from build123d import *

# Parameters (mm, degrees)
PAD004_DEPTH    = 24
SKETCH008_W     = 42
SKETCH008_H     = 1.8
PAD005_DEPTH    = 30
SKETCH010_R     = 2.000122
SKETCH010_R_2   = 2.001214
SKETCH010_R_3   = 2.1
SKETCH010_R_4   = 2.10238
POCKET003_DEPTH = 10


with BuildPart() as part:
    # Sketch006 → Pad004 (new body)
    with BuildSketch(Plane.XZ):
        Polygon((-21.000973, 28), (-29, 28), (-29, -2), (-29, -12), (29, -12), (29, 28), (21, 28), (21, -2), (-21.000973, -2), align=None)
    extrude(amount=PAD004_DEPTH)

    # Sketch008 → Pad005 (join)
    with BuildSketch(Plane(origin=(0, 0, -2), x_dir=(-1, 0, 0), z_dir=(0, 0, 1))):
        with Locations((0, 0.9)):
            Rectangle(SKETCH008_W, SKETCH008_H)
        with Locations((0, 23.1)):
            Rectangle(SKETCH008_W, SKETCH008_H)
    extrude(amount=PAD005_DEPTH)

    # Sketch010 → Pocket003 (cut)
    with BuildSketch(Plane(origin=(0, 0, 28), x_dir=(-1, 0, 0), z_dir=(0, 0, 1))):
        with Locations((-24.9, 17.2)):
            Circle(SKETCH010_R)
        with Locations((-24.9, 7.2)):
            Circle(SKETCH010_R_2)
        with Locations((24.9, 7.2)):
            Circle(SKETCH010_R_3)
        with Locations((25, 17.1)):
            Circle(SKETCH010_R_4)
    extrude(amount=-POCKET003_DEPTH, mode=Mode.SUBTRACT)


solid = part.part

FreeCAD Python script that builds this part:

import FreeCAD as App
import Part
import Sketcher
from FreeCAD import Vector
Q = App.Units.Quantity


def add_polygon(sketch, points):
    """Adds a closed chain of lines whose ends are joined by coincident constraints."""
    first, n = sketch.GeometryCount, len(points)
    for a, b in zip(points, points[1:] + points[:1]):
        sketch.addGeometry(Part.LineSegment(App.Vector(*a, 0), App.Vector(*b, 0)), False)
    for i in range(n):
        sketch.addConstraint(Sketcher.Constraint("Coincident", first + i, 2, first + (i + 1) % n, 1))

doc = App.newDocument("Part")
body = doc.addObject("PartDesign::Body", "Body")

# Sketch on XZ plane
sketch1 = body.newObject("Sketcher::SketchObject", "Sketch")
sketch1.AttachmentSupport = (doc.getObject("XZ_Plane"), [""])
sketch1.MapMode = "FlatFace"
add_polygon(sketch1, [(-21, 28), (-29, 28), (-29, -12), (29, -12), (29, 28), (21, 28), (21, -2), (-21, -2)])  # lines 0-7
sketch1.addConstraint([
    Sketcher.Constraint("Horizontal", 0),
    Sketcher.Constraint("Vertical", 1),
    Sketcher.Constraint("Horizontal", 2),
    Sketcher.Constraint("Vertical", 3),
    Sketcher.Constraint("Horizontal", 4),
    Sketcher.Constraint("Vertical", 5),
    Sketcher.Constraint("Horizontal", 6),
    Sketcher.Constraint("Vertical", 7),
    Sketcher.Constraint("Symmetric", 0, 2, 3, 2, -2),
    Sketcher.Constraint("DistanceX", 2, 1, 2, 2, Q("58 mm")),
    Sketcher.Constraint("DistanceX", 4, 2, 4, 1, Q("8 mm")),
    Sketcher.Constraint("DistanceY", 1, 2, 1, 1, Q("40 mm")),
    Sketcher.Constraint("DistanceY", 5, 2, 5, 1, Q("30 mm")),
    Sketcher.Constraint("DistanceY", -1, 1, 0, 2, Q("28 mm")),
    Sketcher.Constraint("DistanceX", 0, 2, 0, 1, Q("7.999027 mm")),
])
pad1 = body.newObject("PartDesign::Pad", "Pad")
pad1.Profile = sketch1
pad1.Length = 24

# Sketch on XY plane
sketch2 = body.newObject("Sketcher::SketchObject", "Sketch001")
sketch2.AttachmentSupport = (doc.getObject("XY_Plane"), [""])
sketch2.MapMode = "FlatFace"
sketch2.AttachmentOffset = App.Placement(Vector(0, 0, -2), App.Rotation())
add_polygon(sketch2, [(21, -1.8), (21, 0), (-21, 0), (-21, -1.8)])  # lines 0-3
add_polygon(sketch2, [(21, -24), (21, -22.2), (-21, -22.2), (-21, -24)])  # lines 4-7
sketch2.addConstraint([
    Sketcher.Constraint("Vertical", 0),
    Sketcher.Constraint("Horizontal", 1),
    Sketcher.Constraint("Vertical", 2),
    Sketcher.Constraint("Horizontal", 3),
    Sketcher.Constraint("Vertical", 4),
    Sketcher.Constraint("Horizontal", 5),
    Sketcher.Constraint("Vertical", 6),
    Sketcher.Constraint("Horizontal", 7),
    Sketcher.Constraint("Symmetric", 0, 2, 1, 2, -1, 1),
    Sketcher.Constraint("Vertical", 3, 2, 4, 2),
    Sketcher.Constraint("Vertical", 2, 2, 5, 2),
    Sketcher.Constraint("Equal", 2, 4),
    Sketcher.Constraint("DistanceX", 1, 2, 1, 1, Q("42 mm")),
    Sketcher.Constraint("DistanceY", 0, 1, 0, 2, Q("1.8 mm")),
    Sketcher.Constraint("DistanceY", 6, 2, -1, 1, Q("24 mm")),
])
pad2 = body.newObject("PartDesign::Pad", "Pad001")
pad2.Profile = sketch2
pad2.Length = 30

# Sketch on XY plane
sketch3 = body.newObject("Sketcher::SketchObject", "Sketch002")
sketch3.AttachmentSupport = (doc.getObject("XY_Plane"), [""])
sketch3.MapMode = "FlatFace"
sketch3.AttachmentOffset = App.Placement(Vector(0, 0, 28), App.Rotation())
sketch3.addGeometry([
    Part.Circle(Vector(24.9, -17.2, 0), Vector(0, 0, 1), 2),
    Part.Circle(Vector(24.9, -7.2, 0), Vector(0, 0, 1), 2),
    Part.Circle(Vector(-24.9, -7.2, 0), Vector(0, 0, 1), 2.1),
    Part.Circle(Vector(-25, -17.1, 0), Vector(0, 0, 1), 2.1),
], False)
sketch3.addConstraint([
    Sketcher.Constraint("Symmetric", 1, 3, 2, 3, -2),
    Sketcher.Constraint("Vertical", 0, 3, 1, 3),
    Sketcher.Constraint("Diameter", 2, Q("4.2 mm")),
    Sketcher.Constraint("DistanceX", 3, 3, -1, 1, Q("25 mm")),
    Sketcher.Constraint("DistanceY", 0, 3, 1, 3, Q("10 mm")),
    Sketcher.Constraint("DistanceX", -1, 1, 0, 3, Q("24.9 mm")),
    Sketcher.Constraint("DistanceY", 0, 3, -1, 1, Q("17.2 mm")),
    Sketcher.Constraint("DistanceY", 3, 3, -1, 1, Q("17.1 mm")),
    Sketcher.Constraint("Diameter", 3, Q("4.20476 mm")),
    Sketcher.Constraint("Diameter", 0, Q("4.000244 mm")),
    Sketcher.Constraint("Diameter", 1, Q("4.002428 mm")),
])
pocket1 = body.newObject("PartDesign::Pocket", "Pocket")
pocket1.Profile = sketch3
pocket1.Length = 10

doc.recompute()
